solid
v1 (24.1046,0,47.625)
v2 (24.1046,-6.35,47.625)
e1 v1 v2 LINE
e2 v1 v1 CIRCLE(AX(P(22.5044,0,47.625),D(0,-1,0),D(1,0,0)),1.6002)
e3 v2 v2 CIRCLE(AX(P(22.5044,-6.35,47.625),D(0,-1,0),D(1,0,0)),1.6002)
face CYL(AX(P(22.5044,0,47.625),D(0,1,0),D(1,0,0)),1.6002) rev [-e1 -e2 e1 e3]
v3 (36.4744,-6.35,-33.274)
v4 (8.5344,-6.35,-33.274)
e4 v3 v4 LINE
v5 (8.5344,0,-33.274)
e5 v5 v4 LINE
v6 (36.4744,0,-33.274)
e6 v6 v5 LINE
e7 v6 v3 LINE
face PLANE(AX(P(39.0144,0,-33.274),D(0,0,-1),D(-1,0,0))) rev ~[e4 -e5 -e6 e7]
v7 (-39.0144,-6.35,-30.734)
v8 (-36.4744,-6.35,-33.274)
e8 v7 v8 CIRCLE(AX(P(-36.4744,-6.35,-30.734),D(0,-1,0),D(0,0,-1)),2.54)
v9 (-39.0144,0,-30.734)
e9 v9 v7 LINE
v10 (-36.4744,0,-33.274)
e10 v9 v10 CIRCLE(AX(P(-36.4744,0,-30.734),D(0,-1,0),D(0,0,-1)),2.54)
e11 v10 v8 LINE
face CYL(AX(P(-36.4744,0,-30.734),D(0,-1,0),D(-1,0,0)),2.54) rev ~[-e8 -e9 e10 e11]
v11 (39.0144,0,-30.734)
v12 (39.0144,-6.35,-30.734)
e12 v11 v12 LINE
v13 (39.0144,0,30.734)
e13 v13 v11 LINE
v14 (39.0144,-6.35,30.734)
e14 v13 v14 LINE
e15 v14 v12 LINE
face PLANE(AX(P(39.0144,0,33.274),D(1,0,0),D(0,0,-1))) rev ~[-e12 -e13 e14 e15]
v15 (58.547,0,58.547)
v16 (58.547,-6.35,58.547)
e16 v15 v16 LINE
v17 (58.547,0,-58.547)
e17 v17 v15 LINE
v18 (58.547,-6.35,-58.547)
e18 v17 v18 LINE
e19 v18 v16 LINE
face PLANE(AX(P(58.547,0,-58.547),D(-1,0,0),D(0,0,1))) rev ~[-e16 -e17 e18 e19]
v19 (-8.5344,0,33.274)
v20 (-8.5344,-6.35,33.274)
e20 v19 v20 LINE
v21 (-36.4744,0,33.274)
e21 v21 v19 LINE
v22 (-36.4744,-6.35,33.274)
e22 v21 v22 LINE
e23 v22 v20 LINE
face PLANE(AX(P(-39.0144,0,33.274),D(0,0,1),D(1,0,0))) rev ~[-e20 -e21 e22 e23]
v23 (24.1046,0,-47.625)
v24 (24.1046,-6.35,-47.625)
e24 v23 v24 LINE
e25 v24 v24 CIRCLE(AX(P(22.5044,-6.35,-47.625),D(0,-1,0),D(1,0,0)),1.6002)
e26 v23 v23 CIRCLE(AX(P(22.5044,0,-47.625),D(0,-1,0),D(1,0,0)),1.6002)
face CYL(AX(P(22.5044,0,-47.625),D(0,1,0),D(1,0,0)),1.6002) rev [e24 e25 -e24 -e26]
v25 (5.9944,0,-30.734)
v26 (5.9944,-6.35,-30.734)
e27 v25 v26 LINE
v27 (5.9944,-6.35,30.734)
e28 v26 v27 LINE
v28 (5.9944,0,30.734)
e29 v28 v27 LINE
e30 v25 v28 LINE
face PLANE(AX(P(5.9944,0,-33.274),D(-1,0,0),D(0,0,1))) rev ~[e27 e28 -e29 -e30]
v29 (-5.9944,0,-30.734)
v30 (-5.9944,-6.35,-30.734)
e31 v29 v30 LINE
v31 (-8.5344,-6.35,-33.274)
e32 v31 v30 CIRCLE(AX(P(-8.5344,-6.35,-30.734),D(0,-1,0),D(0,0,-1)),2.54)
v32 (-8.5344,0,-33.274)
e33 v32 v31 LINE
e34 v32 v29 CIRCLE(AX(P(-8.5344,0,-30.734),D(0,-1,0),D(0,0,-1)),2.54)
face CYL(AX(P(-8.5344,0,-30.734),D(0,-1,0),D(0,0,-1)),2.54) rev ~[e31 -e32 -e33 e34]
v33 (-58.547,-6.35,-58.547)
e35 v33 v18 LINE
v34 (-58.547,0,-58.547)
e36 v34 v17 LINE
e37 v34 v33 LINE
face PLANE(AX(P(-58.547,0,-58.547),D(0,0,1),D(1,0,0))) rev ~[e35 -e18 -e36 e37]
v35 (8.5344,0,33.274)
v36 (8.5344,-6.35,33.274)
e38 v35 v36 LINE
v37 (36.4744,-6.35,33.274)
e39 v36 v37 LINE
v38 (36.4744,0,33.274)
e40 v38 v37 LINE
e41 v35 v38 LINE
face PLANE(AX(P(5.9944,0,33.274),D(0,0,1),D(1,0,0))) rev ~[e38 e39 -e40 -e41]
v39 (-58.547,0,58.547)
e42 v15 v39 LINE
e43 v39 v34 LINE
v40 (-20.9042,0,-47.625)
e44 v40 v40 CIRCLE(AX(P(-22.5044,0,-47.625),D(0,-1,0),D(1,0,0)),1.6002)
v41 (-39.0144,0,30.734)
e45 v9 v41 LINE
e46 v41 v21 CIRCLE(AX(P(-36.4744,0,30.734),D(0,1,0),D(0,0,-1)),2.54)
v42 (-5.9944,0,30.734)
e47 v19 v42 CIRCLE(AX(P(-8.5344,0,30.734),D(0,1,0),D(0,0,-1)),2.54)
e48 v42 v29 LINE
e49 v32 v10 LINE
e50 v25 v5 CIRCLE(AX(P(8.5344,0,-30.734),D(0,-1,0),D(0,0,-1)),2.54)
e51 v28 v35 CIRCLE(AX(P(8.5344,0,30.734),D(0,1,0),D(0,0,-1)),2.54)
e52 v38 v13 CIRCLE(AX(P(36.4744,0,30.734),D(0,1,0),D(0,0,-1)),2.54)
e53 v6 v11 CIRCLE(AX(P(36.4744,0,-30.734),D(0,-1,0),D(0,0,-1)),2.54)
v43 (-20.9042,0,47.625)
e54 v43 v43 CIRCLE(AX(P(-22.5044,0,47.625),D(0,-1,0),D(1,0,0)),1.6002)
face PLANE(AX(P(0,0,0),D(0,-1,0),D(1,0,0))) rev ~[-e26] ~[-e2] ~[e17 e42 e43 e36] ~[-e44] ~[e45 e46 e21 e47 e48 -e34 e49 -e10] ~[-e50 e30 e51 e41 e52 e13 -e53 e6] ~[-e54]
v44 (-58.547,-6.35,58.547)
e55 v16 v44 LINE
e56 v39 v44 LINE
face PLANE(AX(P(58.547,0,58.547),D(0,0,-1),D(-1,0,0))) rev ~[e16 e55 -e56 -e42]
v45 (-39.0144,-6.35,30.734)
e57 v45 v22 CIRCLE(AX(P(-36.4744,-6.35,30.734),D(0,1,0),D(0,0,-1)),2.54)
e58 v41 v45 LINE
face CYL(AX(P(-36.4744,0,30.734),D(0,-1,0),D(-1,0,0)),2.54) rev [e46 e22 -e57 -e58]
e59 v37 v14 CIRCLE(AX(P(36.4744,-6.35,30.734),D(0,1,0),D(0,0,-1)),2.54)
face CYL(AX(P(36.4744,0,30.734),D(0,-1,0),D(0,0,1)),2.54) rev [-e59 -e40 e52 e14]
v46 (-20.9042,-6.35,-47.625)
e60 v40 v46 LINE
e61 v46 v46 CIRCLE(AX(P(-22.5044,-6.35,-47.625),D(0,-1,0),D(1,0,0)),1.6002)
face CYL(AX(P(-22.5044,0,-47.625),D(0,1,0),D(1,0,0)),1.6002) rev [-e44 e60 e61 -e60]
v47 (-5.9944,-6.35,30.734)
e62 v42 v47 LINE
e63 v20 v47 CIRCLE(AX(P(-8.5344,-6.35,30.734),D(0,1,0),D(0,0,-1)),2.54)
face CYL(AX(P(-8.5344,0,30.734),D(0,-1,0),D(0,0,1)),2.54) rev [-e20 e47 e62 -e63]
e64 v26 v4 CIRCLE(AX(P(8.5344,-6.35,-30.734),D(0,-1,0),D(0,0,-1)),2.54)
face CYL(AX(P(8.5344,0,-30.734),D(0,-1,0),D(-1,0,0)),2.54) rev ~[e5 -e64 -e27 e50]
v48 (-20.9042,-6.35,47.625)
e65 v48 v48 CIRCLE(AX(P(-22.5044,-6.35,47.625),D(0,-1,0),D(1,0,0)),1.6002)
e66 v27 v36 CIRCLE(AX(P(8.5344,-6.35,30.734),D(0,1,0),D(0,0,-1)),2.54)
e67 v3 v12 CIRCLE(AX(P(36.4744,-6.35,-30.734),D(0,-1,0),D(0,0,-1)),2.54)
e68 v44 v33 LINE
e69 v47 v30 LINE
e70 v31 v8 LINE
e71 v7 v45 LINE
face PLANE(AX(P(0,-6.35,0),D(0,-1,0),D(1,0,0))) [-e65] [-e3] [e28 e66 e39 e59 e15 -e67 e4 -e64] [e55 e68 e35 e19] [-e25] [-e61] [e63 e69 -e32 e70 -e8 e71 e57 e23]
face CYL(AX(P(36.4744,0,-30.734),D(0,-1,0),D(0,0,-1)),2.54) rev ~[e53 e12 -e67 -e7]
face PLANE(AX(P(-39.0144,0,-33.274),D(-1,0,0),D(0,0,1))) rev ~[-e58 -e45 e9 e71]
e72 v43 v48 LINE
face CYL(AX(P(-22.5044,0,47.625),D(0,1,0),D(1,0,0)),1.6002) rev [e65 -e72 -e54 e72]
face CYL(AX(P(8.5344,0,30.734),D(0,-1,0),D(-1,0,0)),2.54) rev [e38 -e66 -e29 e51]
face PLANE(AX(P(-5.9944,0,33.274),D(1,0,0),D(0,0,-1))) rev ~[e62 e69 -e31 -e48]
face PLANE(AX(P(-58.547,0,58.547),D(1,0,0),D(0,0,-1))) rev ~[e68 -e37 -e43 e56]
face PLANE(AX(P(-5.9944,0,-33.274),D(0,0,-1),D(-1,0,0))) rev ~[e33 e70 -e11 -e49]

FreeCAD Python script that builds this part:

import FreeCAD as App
import Part
import Sketcher
from FreeCAD import Vector
Q = App.Units.Quantity


def edges_at(feature, points):
    """Names of the edges that pass closest to the given points."""
    edges = feature.Shape.Edges
    near = lambda p: min(range(len(edges)), key=lambda i: edges[i].distToShape(Part.Vertex(*p))[0])
    return sorted({f"Edge{near(p) + 1}" for p in points})

doc = App.newDocument("Part")
params = doc.addObject("Spreadsheet::Sheet", "Params")
for row, (alias, value) in enumerate([
    ("sketch1_diameter", "0.126 in"),
    ("sketch1_width", "1.3 in"),
    ("sketch1_width2", "4.61 in"),
    ("sketch1_height", "2.62 in"),
    ("pad1_length", "0.25 in"),
    ("fillet_radius", "0.1 in"),
], start=1):
    params.set(f"A{row}", alias)
    params.set(f"B{row}", "=" + value)
    params.setAlias(f"B{row}", alias)

body = doc.addObject("PartDesign::Body", "Body")

# Sketch on XZ plane
sketch1 = body.newObject("Sketcher::SketchObject", "Sketch")
sketch1.AttachmentSupport = (doc.getObject("XZ_Plane"), [""])
sketch1.MapMode = "FlatFace"
sketch1.addGeometry([
    Part.LineSegment(Vector(58.5, 58.5, 0), Vector(-58.5, 58.5, 0)),  # 0
    Part.LineSegment(Vector(-58.5, 58.5, 0), Vector(-58.5, -58.5, 0)),  # 1
    Part.LineSegment(Vector(-58.5, -58.5, 0), Vector(58.5, -58.5, 0)),  # 2
    Part.LineSegment(Vector(58.5, -58.5, 0), Vector(58.5, 58.5, 0)),  # 3
    Part.Circle(Vector(-22.5, -47.6, 0), Vector(0, 0, 1), 1.6),  # 4
    Part.LineSegment(Vector(-39, -33.3, 0), Vector(-39, 33.3, 0)),  # 5
    Part.LineSegment(Vector(-39, 33.3, 0), Vector(-6, 33.3, 0)),  # 6
    Part.LineSegment(Vector(-6, 33.3, 0), Vector(-6, -33.3, 0)),  # 7
    Part.LineSegment(Vector(-6, -33.3, 0), Vector(-39, -33.3, 0)),  # 8
    Part.Circle(Vector(22.5, -47.6, 0), Vector(0, 0, 1), 1.6),  # 9
    Part.LineSegment(Vector(6, -33.3, 0), Vector(6, 33.3, 0)),  # 10
    Part.LineSegment(Vector(6, 33.3, 0), Vector(39, 33.3, 0)),  # 11
    Part.LineSegment(Vector(39, 33.3, 0), Vector(39, -33.3, 0)),  # 12
    Part.LineSegment(Vector(39, -33.3, 0), Vector(6, -33.3, 0)),  # 13
    Part.Circle(Vector(-22.5, 47.6, 0), Vector(0, 0, 1), 1.6),  # 14
    Part.Circle(Vector(22.5, 47.6, 0), Vector(0, 0, 1), 1.6),  # 15
], False)
sketch1.addConstraint([
    Sketcher.Constraint("Coincident", 0, 2, 1, 1),
    Sketcher.Constraint("Coincident", 1, 2, 2, 1),
    Sketcher.Constraint("Coincident", 2, 2, 3, 1),
    Sketcher.Constraint("Coincident", 3, 2, 0, 1),
    Sketcher.Constraint("Coincident", 5, 2, 6, 1),
    Sketcher.Constraint("Coincident", 6, 2, 7, 1),
    Sketcher.Constraint("Coincident", 7, 2, 8, 1),
    Sketcher.Constraint("Coincident", 8, 2, 5, 1),
    Sketcher.Constraint("Coincident", 10, 2, 11, 1),
    Sketcher.Constraint("Coincident", 11, 2, 12, 1),
    Sketcher.Constraint("Coincident", 12, 2, 13, 1),
    Sketcher.Constraint("Coincident", 13, 2, 10, 1),
    Sketcher.Constraint("Horizontal", 0),
    Sketcher.Constraint("Vertical", 1),
    Sketcher.Constraint("Horizontal", 2),
    Sketcher.Constraint("Vertical", 3),
    Sketcher.Constraint("Vertical", 5),
    Sketcher.Constraint("Horizontal", 6),
    Sketcher.Constraint("Vertical", 7),
    Sketcher.Constraint("Horizontal", 8),
    Sketcher.Constraint("Vertical", 10),
    Sketcher.Constraint("Horizontal", 11),
    Sketcher.Constraint("Vertical", 12),
    Sketcher.Constraint("Horizontal", 13),
    Sketcher.Constraint("Equal", 4, 9),
    Sketcher.Constraint("Equal", 9, 14),
    Sketcher.Constraint("Equal", 14, 15),
    Sketcher.Constraint("Symmetric", 9, 3, 14, 3, -1, 1),
    Sketcher.Constraint("Symmetric", 4, 3, 15, 3, -1, 1),
    Sketcher.Constraint("Symmetric", 0, 2, 2, 2, -1, 1),
    Sketcher.Constraint("Symmetric", 7, 2, 10, 2, -1, 1),
    Sketcher.Constraint("Symmetric", 5, 2, 12, 2, -1, 1),
    Sketcher.Constraint("Symmetric", 4, 3, 9, 3, -2),
    Sketcher.Constraint("Horizontal", 6, 2, 10, 2),
    Sketcher.Constraint("Equal", 2, 1),
    Sketcher.Constraint("Diameter", 4, Q("0.126 in")),
    Sketcher.Constraint("DistanceX", 6, 1, 6, 2, Q("1.3 in")),
    Sketcher.Constraint("DistanceX", 0, 2, 0, 1, Q("4.61 in")),
    Sketcher.Constraint("DistanceY", 5, 1, 5, 2, Q("2.62 in")),
    Sketcher.Constraint("DistanceY", 4, 3, 14, 3, Q("3.75 in")),
    Sketcher.Constraint("DistanceX", 5, 2, 14, 3, Q("0.65 in")),
    Sketcher.Constraint("DistanceX", 4, 3, -1, 1, Q("0.886 in")),
])
sketch1.setExpression("Constraints[35]", "Params.sketch1_diameter")
sketch1.setExpression("Constraints[36]", "Params.sketch1_width")
sketch1.setExpression("Constraints[37]", "Params.sketch1_width2")
sketch1.setExpression("Constraints[38]", "Params.sketch1_height")
pad1 = body.newObject("PartDesign::Pad", "Pad")
pad1.Profile = sketch1
pad1.setExpression("Length", "Params.pad1_length")
doc.recompute()

fillet = body.newObject("PartDesign::Fillet", "Fillet")
fillet.Base = (pad1, edges_at(pad1, [
    (39.014, -3.175, 33.274),
    (39.014, -3.175, -33.274),
    (-5.994, -3.175, -33.274),
    (-5.994, -3.175, 33.274),
    (5.994, -3.175, 33.274),
    (-39.014, -3.175, 33.274),
    (5.994, -3.175, -33.274),
    (-39.014, -3.175, -33.274),
]))
fillet.setExpression("Radius", "Params.fillet_radius")

doc.recompute()
